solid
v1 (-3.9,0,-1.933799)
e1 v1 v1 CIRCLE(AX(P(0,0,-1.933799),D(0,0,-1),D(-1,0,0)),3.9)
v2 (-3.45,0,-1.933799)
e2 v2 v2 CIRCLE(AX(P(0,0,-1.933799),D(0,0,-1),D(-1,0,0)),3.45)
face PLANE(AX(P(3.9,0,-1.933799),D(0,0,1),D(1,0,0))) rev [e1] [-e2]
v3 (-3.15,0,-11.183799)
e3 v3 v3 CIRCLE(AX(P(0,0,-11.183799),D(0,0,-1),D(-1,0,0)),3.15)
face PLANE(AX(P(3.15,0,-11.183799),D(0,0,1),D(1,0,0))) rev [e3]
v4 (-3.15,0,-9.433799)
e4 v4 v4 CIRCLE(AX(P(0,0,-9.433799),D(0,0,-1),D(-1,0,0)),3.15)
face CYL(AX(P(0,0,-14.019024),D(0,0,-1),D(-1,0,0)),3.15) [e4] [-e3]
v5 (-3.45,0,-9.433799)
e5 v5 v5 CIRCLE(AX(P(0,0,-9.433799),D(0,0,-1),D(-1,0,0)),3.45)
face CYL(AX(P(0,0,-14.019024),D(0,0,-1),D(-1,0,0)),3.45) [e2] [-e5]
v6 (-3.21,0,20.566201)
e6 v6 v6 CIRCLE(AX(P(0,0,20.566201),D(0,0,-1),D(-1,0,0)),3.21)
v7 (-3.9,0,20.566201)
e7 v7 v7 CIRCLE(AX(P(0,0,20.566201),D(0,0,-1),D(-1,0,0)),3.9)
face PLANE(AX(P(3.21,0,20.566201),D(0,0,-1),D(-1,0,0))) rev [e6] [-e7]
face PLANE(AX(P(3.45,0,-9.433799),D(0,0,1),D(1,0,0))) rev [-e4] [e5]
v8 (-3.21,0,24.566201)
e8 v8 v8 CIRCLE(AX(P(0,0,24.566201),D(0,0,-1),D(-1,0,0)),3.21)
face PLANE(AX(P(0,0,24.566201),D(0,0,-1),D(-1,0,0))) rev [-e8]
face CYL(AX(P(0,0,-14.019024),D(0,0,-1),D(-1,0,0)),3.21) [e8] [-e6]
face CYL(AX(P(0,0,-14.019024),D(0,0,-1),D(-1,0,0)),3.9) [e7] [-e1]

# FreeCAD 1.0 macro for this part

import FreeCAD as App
import Part
import Sketcher
Q = App.Units.Quantity


def add_polygon(sketch, points):
    """Adds a closed chain of lines whose ends are joined by coincident constraints."""
    first, n = sketch.GeometryCount, len(points)
    for a, b in zip(points, points[1:] + points[:1]):
        sketch.addGeometry(Part.LineSegment(App.Vector(*a, 0), App.Vector(*b, 0)), False)
    for i in range(n):
        sketch.addConstraint(Sketcher.Constraint("Coincident", first + i, 2, first + (i + 1) % n, 1))

doc = App.newDocument("Part")
body = doc.addObject("PartDesign::Body", "Body")

# Sketch on XZ plane
sketch1 = doc.addObject("Sketcher::SketchObject", "Sketch")
body.addObject(sketch1)
sketch1.AttachmentSupport = (doc.XZ_Plane, [""])
sketch1.MapMode = "FlatFace"
add_polygon(sketch1, [(0, -11.18), (0, 24.57), (3.21, 24.57), (3.21, 20.57), (3.9, 20.57), (3.9, -1.93), (3.45, -1.93), (3.45, -9.43), (3.15, -9.43), (3.15, -11.18)])  # lines 0-9
sketch1.addConstraint(Sketcher.Constraint("Vertical", 0))
sketch1.addConstraint(Sketcher.Constraint("Horizontal", 1))
sketch1.addConstraint(Sketcher.Constraint("Vertical", 2))
sketch1.addConstraint(Sketcher.Constraint("Horizontal", 3))
sketch1.addConstraint(Sketcher.Constraint("Vertical", 4))
sketch1.addConstraint(Sketcher.Constraint("Horizontal", 5))
sketch1.addConstraint(Sketcher.Constraint("Vertical", 6))
sketch1.addConstraint(Sketcher.Constraint("Horizontal", 7))
sketch1.addConstraint(Sketcher.Constraint("Vertical", 8))
sketch1.addConstraint(Sketcher.Constraint("Horizontal", 9))
sketch1.addConstraint(Sketcher.Constraint("PointOnObject", 0, 2, -2))
sketch1.addConstraint(Sketcher.Constraint("DistanceY", 2, 2, 2, 1, Q("4 mm")))
sketch1.addConstraint(Sketcher.Constraint("DistanceX", 7, 2, 7, 1, Q("0.3 mm")))
sketch1.addConstraint(Sketcher.Constraint("DistanceY", 4, 2, 4, 1, Q("22.5 mm")))
sketch1.addConstraint(Sketcher.Constraint("DistanceY", 6, 2, 6, 1, Q("7.5 mm")))
sketch1.addConstraint(Sketcher.Constraint("DistanceX", 1, 1, 1, 2, Q("3.21 mm")))
sketch1.addConstraint(Sketcher.Constraint("DistanceX", 3, 1, 3, 2, Q("0.69 mm")))
sketch1.addConstraint(Sketcher.Constraint("DistanceX", 5, 2, 5, 1, Q("0.45 mm")))
sketch1.addConstraint(Sketcher.Constraint("DistanceY", 0, 1, 0, 2, Q("35.75 mm")))
sketch1.addConstraint(Sketcher.Constraint("DistanceY", -1, 1, 0, 2, Q("24.566201 mm")))
revolution = doc.addObject("PartDesign::Revolution", "Revolution")
body.addObject(revolution)
revolution.Profile = sketch1
revolution.ReferenceAxis = (sketch1, ["V_Axis"])
revolution.Angle = 360

doc.recompute()
